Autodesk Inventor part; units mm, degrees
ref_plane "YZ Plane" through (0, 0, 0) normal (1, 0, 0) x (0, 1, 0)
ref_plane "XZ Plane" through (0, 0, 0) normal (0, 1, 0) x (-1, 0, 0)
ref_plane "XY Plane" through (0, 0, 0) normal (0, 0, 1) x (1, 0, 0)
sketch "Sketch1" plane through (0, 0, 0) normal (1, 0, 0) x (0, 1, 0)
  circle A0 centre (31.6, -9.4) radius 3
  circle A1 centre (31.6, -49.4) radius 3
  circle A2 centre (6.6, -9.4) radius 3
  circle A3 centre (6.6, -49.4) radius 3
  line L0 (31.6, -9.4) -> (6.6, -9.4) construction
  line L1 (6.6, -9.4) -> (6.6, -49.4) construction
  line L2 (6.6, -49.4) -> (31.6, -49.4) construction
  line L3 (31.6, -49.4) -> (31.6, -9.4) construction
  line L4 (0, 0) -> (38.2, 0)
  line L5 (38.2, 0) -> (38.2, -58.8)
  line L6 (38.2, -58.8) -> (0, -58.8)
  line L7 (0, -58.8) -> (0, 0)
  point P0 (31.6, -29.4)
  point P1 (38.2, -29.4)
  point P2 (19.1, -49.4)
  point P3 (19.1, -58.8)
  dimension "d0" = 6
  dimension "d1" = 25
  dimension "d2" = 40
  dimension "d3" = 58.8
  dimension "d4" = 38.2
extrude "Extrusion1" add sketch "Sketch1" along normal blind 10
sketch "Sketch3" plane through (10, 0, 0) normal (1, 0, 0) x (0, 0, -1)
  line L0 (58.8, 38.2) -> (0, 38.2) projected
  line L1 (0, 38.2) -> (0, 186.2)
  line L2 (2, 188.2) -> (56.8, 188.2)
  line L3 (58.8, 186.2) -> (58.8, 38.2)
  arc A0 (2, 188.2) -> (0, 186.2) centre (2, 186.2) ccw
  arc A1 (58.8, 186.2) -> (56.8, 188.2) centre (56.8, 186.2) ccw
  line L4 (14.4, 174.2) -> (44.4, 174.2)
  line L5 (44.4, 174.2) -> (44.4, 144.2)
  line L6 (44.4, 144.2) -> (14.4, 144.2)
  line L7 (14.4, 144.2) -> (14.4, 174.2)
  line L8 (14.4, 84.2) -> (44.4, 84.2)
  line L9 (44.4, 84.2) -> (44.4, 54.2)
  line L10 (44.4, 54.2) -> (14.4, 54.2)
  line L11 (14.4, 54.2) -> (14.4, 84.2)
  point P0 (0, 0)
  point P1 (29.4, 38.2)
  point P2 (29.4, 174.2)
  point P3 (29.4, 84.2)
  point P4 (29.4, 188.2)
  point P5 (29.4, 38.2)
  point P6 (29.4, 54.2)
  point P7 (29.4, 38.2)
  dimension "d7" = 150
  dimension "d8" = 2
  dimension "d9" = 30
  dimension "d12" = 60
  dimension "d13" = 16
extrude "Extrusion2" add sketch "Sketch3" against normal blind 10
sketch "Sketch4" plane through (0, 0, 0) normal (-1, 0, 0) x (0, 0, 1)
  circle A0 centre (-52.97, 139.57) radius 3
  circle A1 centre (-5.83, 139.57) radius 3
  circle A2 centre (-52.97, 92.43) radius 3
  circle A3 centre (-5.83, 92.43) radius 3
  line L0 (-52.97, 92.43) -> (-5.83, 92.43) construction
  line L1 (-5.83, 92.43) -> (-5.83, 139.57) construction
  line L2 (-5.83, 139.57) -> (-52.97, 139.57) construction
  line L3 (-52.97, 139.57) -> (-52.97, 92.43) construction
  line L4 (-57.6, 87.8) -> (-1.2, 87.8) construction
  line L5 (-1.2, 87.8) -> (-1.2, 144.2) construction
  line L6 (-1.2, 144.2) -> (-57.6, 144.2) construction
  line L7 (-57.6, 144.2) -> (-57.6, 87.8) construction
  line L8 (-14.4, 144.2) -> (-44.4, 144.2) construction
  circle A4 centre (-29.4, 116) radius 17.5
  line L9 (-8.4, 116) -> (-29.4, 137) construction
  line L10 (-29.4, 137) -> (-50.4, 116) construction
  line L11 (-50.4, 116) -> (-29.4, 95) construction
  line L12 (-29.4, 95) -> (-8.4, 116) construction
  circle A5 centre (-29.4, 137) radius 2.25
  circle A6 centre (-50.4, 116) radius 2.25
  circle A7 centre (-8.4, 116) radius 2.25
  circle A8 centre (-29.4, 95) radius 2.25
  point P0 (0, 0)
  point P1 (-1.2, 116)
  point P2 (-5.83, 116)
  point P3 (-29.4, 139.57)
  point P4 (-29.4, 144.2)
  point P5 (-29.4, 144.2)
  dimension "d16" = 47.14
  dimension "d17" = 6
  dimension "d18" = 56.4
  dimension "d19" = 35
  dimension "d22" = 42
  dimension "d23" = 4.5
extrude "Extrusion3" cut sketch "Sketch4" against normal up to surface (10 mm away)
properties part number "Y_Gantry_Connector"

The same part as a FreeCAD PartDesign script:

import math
import FreeCAD as App
import Part
import Sketcher
Q = App.Units.Quantity

doc = App.newDocument("Part")
body = doc.addObject("PartDesign::Body", "Body")

# Sketch on YZ plane
sketch1 = doc.addObject("Sketcher::SketchObject", "Sketch")
body.addObject(sketch1)
sketch1.AttachmentSupport = (doc.YZ_Plane, [""])
sketch1.MapMode = "FlatFace"
sketch1.addGeometry([
    Part.LineSegment(App.Vector(38.2, 0, 0), App.Vector(0, 0, 0)),  # 0
    Part.LineSegment(App.Vector(0, 0, 0), App.Vector(0, -58.8, 0)),  # 1
    Part.LineSegment(App.Vector(0, -58.8, 0), App.Vector(38.2, -58.8, 0)),  # 2
    Part.LineSegment(App.Vector(38.2, -58.8, 0), App.Vector(38.2, 0, 0)),  # 3
    Part.Circle(App.Vector(6.6, -49.4, 0), App.Vector(0, 0, 1), 3),  # 4
    Part.Circle(App.Vector(31.6, -49.4, 0), App.Vector(0, 0, 1), 3),  # 5
    Part.Circle(App.Vector(6.6, -9.4, 0), App.Vector(0, 0, 1), 3),  # 6
    Part.Circle(App.Vector(31.6, -9.4, 0), App.Vector(0, 0, 1), 3),  # 7
], False)
sketch1.addConstraint([
    Sketcher.Constraint("Coincident", 0, 2, 1, 1),
    Sketcher.Constraint("Coincident", 1, 2, 2, 1),
    Sketcher.Constraint("Coincident", 2, 2, 3, 1),
    Sketcher.Constraint("Coincident", 3, 2, 0, 1),
    Sketcher.Constraint("Horizontal", 0),
    Sketcher.Constraint("Vertical", 1),
    Sketcher.Constraint("Horizontal", 2),
    Sketcher.Constraint("Vertical", 3),
    Sketcher.Constraint("Coincident", 0, 2, -1, 1),
    Sketcher.Constraint("Equal", 4, 5),
    Sketcher.Constraint("Equal", 5, 6),
    Sketcher.Constraint("Equal", 6, 7),
    Sketcher.Constraint("Horizontal", 4, 3, 5, 3),
    Sketcher.Constraint("Horizontal", 6, 3, 7, 3),
    Sketcher.Constraint("Vertical", 4, 3, 6, 3),
    Sketcher.Constraint("Vertical", 5, 3, 7, 3),
    Sketcher.Constraint("Diameter", 4, Q("6 mm")),
    Sketcher.Constraint("DistanceX", 0, 2, 0, 1, Q("38.2 mm")),
    Sketcher.Constraint("DistanceY", 1, 2, 1, 1, Q("58.8 mm")),
    Sketcher.Constraint("DistanceX", 4, 3, 5, 3, Q("25 mm")),
    Sketcher.Constraint("DistanceY", 4, 3, 6, 3, Q("40 mm")),
    Sketcher.Constraint("DistanceX", -1, 1, 4, 3, Q("6.6 mm")),
    Sketcher.Constraint("DistanceY", 4, 3, -1, 1, Q("49.4 mm")),
])
pad1 = doc.addObject("PartDesign::Pad", "Pad")
body.addObject(pad1)
pad1.Profile = sketch1
pad1.Length = 10

# Sketch on YZ plane
sketch2 = doc.addObject("Sketcher::SketchObject", "Sketch001")
body.addObject(sketch2)
sketch2.AttachmentSupport = (doc.YZ_Plane, [""])
sketch2.MapMode = "FlatFace"
sketch2.AttachmentOffset = App.Placement(App.Vector(0, 0, 10), App.Rotation())
sketch2.addGeometry([
    Part.LineSegment(App.Vector(38.2, 0, 0), App.Vector(38.2, -58.8, 0)),  # 0
    Part.LineSegment(App.Vector(38.2, -58.8, 0), App.Vector(186.2, -58.8, 0)),  # 1
    Part.ArcOfCircle(Part.Circle(App.Vector(186.2, -56.8, 0), App.Vector(0, 0, 1), 2), math.radians(-90), math.radians(0)),  # 2
    Part.LineSegment(App.Vector(188.2, -56.8, 0), App.Vector(188.2, -2, 0)),  # 3
    Part.ArcOfCircle(Part.Circle(App.Vector(186.2, -2, 0), App.Vector(0, 0, 1), 2), math.radians(0), math.radians(90)),  # 4
    Part.LineSegment(App.Vector(186.2, 0, 0), App.Vector(38.2, 0, 0)),  # 5
    Part.LineSegment(App.Vector(54.2, -14.4, 0), App.Vector(84.2, -14.4, 0)),  # 6
    Part.LineSegment(App.Vector(84.2, -14.4, 0), App.Vector(84.2, -44.4, 0)),  # 7
    Part.LineSegment(App.Vector(84.2, -44.4, 0), App.Vector(54.2, -44.4, 0)),  # 8
    Part.LineSegment(App.Vector(54.2, -44.4, 0), App.Vector(54.2, -14.4, 0)),  # 9
    Part.LineSegment(App.Vector(144.2, -14.4, 0), App.Vector(174.2, -14.4, 0)),  # 10
    Part.LineSegment(App.Vector(174.2, -14.4, 0), App.Vector(174.2, -44.4, 0)),  # 11
    Part.LineSegment(App.Vector(174.2, -44.4, 0), App.Vector(144.2, -44.4, 0)),  # 12
    Part.LineSegment(App.Vector(144.2, -44.4, 0), App.Vector(144.2, -14.4, 0)),  # 13
], False)
sketch2.addConstraint([
    Sketcher.Constraint("Coincident", 0, 2, 1, 1),
    Sketcher.Constraint("Tangent", 1, 2, 2, 1),
    Sketcher.Constraint("Tangent", 2, 2, 3, 1),
    Sketcher.Constraint("Tangent", 3, 2, 4, 1),
    Sketcher.Constraint("Tangent", 4, 2, 5, 1),
    Sketcher.Constraint("Coincident", 5, 2, 0, 1),
    Sketcher.Constraint("Coincident", 6, 2, 7, 1),
    Sketcher.Constraint("Coincident", 7, 2, 8, 1),
    Sketcher.Constraint("Coincident", 8, 2, 9, 1),
    Sketcher.Constraint("Coincident", 9, 2, 6, 1),
    Sketcher.Constraint("Coincident", 10, 2, 11, 1),
    Sketcher.Constraint("Coincident", 11, 2, 12, 1),
    Sketcher.Constraint("Coincident", 12, 2, 13, 1),
    Sketcher.Constraint("Coincident", 13, 2, 10, 1),
    Sketcher.Constraint("Vertical", 0),
    Sketcher.Constraint("Horizontal", 1),
    Sketcher.Constraint("Vertical", 3),
    Sketcher.Constraint("Horizontal", 5),
    Sketcher.Constraint("Horizontal", 6),
    Sketcher.Constraint("Vertical", 7),
    Sketcher.Constraint("Horizontal", 8),
    Sketcher.Constraint("Vertical", 9),
    Sketcher.Constraint("Horizontal", 10),
    Sketcher.Constraint("Vertical", 11),
    Sketcher.Constraint("Horizontal", 12),
    Sketcher.Constraint("Vertical", 13),
    Sketcher.Constraint("Equal", 2, 4),
    Sketcher.Constraint("PointOnObject", 4, 2, -1),
    Sketcher.Constraint("Horizontal", 9, 2, 10, 2),
    Sketcher.Constraint("Horizontal", 8, 2, 11, 2),
    Sketcher.Constraint("Equal", 8, 10),
    Sketcher.Constraint("Equal", 12, 7),
    Sketcher.Constraint("Radius", 2, Q("2 mm")),
    Sketcher.Constraint("DistanceX", 6, 1, 6, 2, Q("30 mm")),
    Sketcher.Constraint("DistanceX", 0, 2, 2, 2, Q("150 mm")),
    Sketcher.Constraint("DistanceX", 0, 2, 8, 2, Q("16 mm")),
    Sketcher.Constraint("DistanceY", 0, 2, 0, 1, Q("58.8 mm")),
    Sketcher.Constraint("DistanceX", 10, 2, 4, 3, Q("12 mm")),
    Sketcher.Constraint("DistanceX", -1, 1, 2, 3, Q("186.2 mm")),
    Sketcher.Constraint("DistanceY", 6, 2, -1, 1, Q("14.4 mm")),
])
pad2 = doc.addObject("PartDesign::Pad", "Pad001")
body.addObject(pad2)
pad2.Profile = sketch2
pad2.Length = 10
pad2.Reversed = True

# Sketch on YZ plane
sketch3 = doc.addObject("Sketcher::SketchObject", "Sketch002")
body.addObject(sketch3)
sketch3.AttachmentSupport = (doc.YZ_Plane, [""])
sketch3.MapMode = "FlatFace"
sketch3.addGeometry([
    Part.Circle(App.Vector(139.57, -52.97, 0), App.Vector(0, 0, 1), 3),  # 0
    Part.Circle(App.Vector(139.57, -5.83, 0), App.Vector(0, 0, 1), 3),  # 1
    Part.Circle(App.Vector(92.43, -52.97, 0), App.Vector(0, 0, 1), 3),  # 2
    Part.Circle(App.Vector(92.43, -5.83, 0), App.Vector(0, 0, 1), 3),  # 3
    Part.Circle(App.Vector(116, -29.4, 0), App.Vector(0, 0, 1), 17.5),  # 4
    Part.Circle(App.Vector(137, -29.4, 0), App.Vector(0, 0, 1), 2.25),  # 5
    Part.Circle(App.Vector(116, -50.4, 0), App.Vector(0, 0, 1), 2.25),  # 6
    Part.Circle(App.Vector(116, -8.4, 0), App.Vector(0, 0, 1), 2.25),  # 7
    Part.Circle(App.Vector(95, -29.4, 0), App.Vector(0, 0, 1), 2.25),  # 8
], False)
sketch3.addConstraint([
    Sketcher.Constraint("Equal", 0, 1),
    Sketcher.Constraint("Equal", 1, 2),
    Sketcher.Constraint("Equal", 2, 3),
    Sketcher.Constraint("Equal", 5, 6),
    Sketcher.Constraint("Equal", 6, 7),
    Sketcher.Constraint("Equal", 7, 8),
    Sketcher.Constraint("Horizontal", 0, 3, 2, 3),
    Sketcher.Constraint("Horizontal", 1, 3, 3, 3),
    Sketcher.Constraint("Horizontal", 4, 3, 5, 3),
    Sketcher.Constraint("Horizontal", 5, 3, 8, 3),
    Sketcher.Constraint("Vertical", 0, 3, 1, 3),
    Sketcher.Constraint("Vertical", 2, 3, 3, 3),
    Sketcher.Constraint("Vertical", 4, 3, 6, 3),
    Sketcher.Constraint("Vertical", 6, 3, 7, 3),
    Sketcher.Constraint("Diameter", 0, Q("6 mm")),
    Sketcher.Constraint("Diameter", 4, Q("35 mm")),
    Sketcher.Constraint("Diameter", 5, Q("4.5 mm")),
    Sketcher.Constraint("DistanceY", 6, 3, 7, 3, Q("42 mm")),
    Sketcher.Constraint("DistanceY", 0, 3, 1, 3, Q("47.14 mm")),
    Sketcher.Constraint("DistanceX", 2, 3, 0, 3, Q("47.14 mm")),
    Sketcher.Constraint("DistanceX", -1, 1, 4, 3, Q("116 mm")),
    Sketcher.Constraint("DistanceX", -1, 1, 5, 3, Q("137 mm")),
    Sketcher.Constraint("DistanceX", -1, 1, 8, 3, Q("95 mm")),
    Sketcher.Constraint("DistanceY", 6, 3, 4, 3, Q("21 mm")),
    Sketcher.Constraint("DistanceY", 4, 3, -1, 1, Q("29.4 mm")),
    Sketcher.Constraint("DistanceX", -1, 1, 0, 3, Q("139.57 mm")),
    Sketcher.Constraint("DistanceY", 0, 3, -1, 1, Q("52.97 mm")),
])
pocket1 = doc.addObject("PartDesign::Pocket", "Pocket")
body.addObject(pocket1)
pocket1.Profile = sketch3
pocket1.Length = 10
pocket1.Reversed = True

doc.recompute()
